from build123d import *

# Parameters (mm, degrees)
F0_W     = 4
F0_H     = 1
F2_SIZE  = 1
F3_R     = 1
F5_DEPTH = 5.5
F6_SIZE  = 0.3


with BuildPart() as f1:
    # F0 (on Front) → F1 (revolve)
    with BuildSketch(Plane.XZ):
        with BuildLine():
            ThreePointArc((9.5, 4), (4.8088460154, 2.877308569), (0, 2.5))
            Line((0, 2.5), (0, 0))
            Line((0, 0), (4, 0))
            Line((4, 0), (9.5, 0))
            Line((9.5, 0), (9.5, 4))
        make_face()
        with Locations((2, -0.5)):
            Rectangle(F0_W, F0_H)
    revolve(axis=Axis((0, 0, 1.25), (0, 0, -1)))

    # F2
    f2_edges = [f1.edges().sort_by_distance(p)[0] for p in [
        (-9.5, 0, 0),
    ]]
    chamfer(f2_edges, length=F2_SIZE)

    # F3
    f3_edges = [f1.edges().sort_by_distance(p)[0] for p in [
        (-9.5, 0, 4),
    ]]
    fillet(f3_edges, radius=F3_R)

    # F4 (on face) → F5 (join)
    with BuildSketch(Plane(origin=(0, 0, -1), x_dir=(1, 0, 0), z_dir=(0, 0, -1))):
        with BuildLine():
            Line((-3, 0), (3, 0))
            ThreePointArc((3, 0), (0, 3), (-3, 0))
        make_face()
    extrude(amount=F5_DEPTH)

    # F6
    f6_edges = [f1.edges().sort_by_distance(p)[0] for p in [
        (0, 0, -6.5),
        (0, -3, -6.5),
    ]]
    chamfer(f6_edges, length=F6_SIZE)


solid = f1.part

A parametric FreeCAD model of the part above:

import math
import FreeCAD as App
import Part
import Sketcher
Q = App.Units.Quantity


def edges_at(feature, points):
    """Names of the edges that pass closest to the given points."""
    edges = feature.Shape.Edges
    near = lambda p: min(range(len(edges)), key=lambda i: edges[i].distToShape(Part.Vertex(*p))[0])
    return sorted({f"Edge{near(p) + 1}" for p in points})

doc = App.newDocument("Part")
body = doc.addObject("PartDesign::Body", "Body")

# Sketch on XZ plane
sketch1 = doc.addObject("Sketcher::SketchObject", "Sketch")
body.addObject(sketch1)
sketch1.AttachmentSupport = (doc.XZ_Plane, [""])
sketch1.MapMode = "FlatFace"
sketch1.addGeometry([
    Part.ArcOfCircle(Part.Circle(App.Vector(0, 33.333333, 0), App.Vector(0, 0, 1), 30.833333), math.radians(-90), math.radians(-72.054747)),  # 0
    Part.LineSegment(App.Vector(0, 2.5, 0), App.Vector(0, -1, 0)),  # 1
    Part.LineSegment(App.Vector(0, -1, 0), App.Vector(4, -1, 0)),  # 2
    Part.LineSegment(App.Vector(4, -1, 0), App.Vector(4, 0, 0)),  # 3
    Part.LineSegment(App.Vector(4, 0, 0), App.Vector(9.5, 0, 0)),  # 4
    Part.LineSegment(App.Vector(9.5, 0, 0), App.Vector(9.5, 4, 0)),  # 5
], False)
sketch1.addConstraint([
    Sketcher.Constraint("Coincident", 0, 1, 1, 1),
    Sketcher.Constraint("Coincident", 1, 2, 2, 1),
    Sketcher.Constraint("Coincident", 2, 2, 3, 1),
    Sketcher.Constraint("Coincident", 3, 2, 4, 1),
    Sketcher.Constraint("Coincident", 4, 2, 5, 1),
    Sketcher.Constraint("Coincident", 5, 2, 0, 2),
    Sketcher.Constraint("Vertical", 1),
    Sketcher.Constraint("Horizontal", 2),
    Sketcher.Constraint("Vertical", 3),
    Sketcher.Constraint("Horizontal", 4),
    Sketcher.Constraint("Vertical", 5),
    Sketcher.Constraint("PointOnObject", 0, 3, -2),
    Sketcher.Constraint("PointOnObject", 0, 1, -2),
    Sketcher.Constraint("PointOnObject", 3, 2, -1),
    Sketcher.Constraint("Equal", 2, 5),
    Sketcher.Constraint("DistanceX", 2, 1, 2, 2, Q("4 mm")),
    Sketcher.Constraint("DistanceY", 3, 1, 3, 2, Q("1 mm")),
    Sketcher.Constraint("DistanceX", 4, 1, 4, 2, Q("5.5 mm")),
    Sketcher.Constraint("DistanceY", 1, 2, 1, 1, Q("3.5 mm")),
])
revolution = doc.addObject("PartDesign::Revolution", "Revolution")
body.addObject(revolution)
revolution.Profile = sketch1
revolution.ReferenceAxis = (sketch1, ["V_Axis"])
revolution.Angle = 360
doc.recompute()

chamfer = doc.addObject("PartDesign::Chamfer", "Chamfer")
body.addObject(chamfer)
chamfer.Base = (revolution, edges_at(revolution, [(-9.5, 0, 0)]))
chamfer.Size = 1
doc.recompute()

fillet = doc.addObject("PartDesign::Fillet", "Fillet")
body.addObject(fillet)
fillet.Base = (chamfer, edges_at(chamfer, [(-9.5, 0, 4)]))
fillet.Radius = 1

# Sketch on XY plane
sketch2 = doc.addObject("Sketcher::SketchObject", "Sketch001")
body.addObject(sketch2)
sketch2.AttachmentSupport = (doc.XY_Plane, [""])
sketch2.MapMode = "FlatFace"
sketch2.AttachmentOffset = App.Placement(App.Vector(0, 0, -1), App.Rotation())
sketch2.addGeometry([
    Part.LineSegment(App.Vector(-3, 0, 0), App.Vector(3, 0, 0)),
    Part.ArcOfCircle(Part.Circle(App.Vector(0, 0, 0), App.Vector(0, 0, 1), 3), math.radians(180), math.radians(360)),
], False)
sketch2.addConstraint([
    Sketcher.Constraint("Coincident", 0, 1, 1, 1),
    Sketcher.Constraint("Coincident", 1, 2, 0, 2),
    Sketcher.Constraint("Horizontal", 0),
    Sketcher.Constraint("Coincident", 1, 3, -1, 1),
    Sketcher.Constraint("PointOnObject", 0, 1, -1),
    Sketcher.Constraint("Radius", 1, Q("3 mm")),
])
pad1 = doc.addObject("PartDesign::Pad", "Pad")
body.addObject(pad1)
pad1.Profile = sketch2
pad1.Length = 5.5
pad1.Reversed = True
doc.recompute()

chamfer2 = doc.addObject("PartDesign::Chamfer", "Chamfer001")
body.addObject(chamfer2)
chamfer2.Base = (pad1, edges_at(pad1, [(0, 0, -6.5), (0, -3, -6.5)]))
chamfer2.Size = 0.3

doc.recompute()
